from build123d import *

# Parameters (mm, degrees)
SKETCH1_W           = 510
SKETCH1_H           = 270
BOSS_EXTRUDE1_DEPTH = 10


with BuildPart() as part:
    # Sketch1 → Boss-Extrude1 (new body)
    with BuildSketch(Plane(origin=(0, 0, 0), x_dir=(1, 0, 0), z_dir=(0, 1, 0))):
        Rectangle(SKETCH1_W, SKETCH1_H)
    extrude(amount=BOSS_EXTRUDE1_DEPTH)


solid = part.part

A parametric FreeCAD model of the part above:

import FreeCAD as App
import Part
import Sketcher

V = App.Vector

doc = App.newDocument("Part")
body = doc.addObject("PartDesign::Body", "Body")

# Sketch on XZ plane
sketch1 = doc.addObject("Sketcher::SketchObject", "Sketch")
body.addObject(sketch1)
sketch1.AttachmentSupport = (doc.XZ_Plane, [""])
sketch1.MapMode = "FlatFace"
sketch1.addGeometry([
    Part.LineSegment(V(-255, -135, 0), V(-255, 135, 0)),
    Part.LineSegment(V(-255, 135, 0), V(255, 135, 0)),
    Part.LineSegment(V(255, 135, 0), V(255, -135, 0)),
    Part.LineSegment(V(255, -135, 0), V(-255, -135, 0)),
], False)
sketch1.addConstraint([
    Sketcher.Constraint("Coincident", 0, 2, 1, 1),
    Sketcher.Constraint("Coincident", 1, 2, 2, 1),
    Sketcher.Constraint("Coincident", 2, 2, 3, 1),
    Sketcher.Constraint("Coincident", 3, 2, 0, 1),
    Sketcher.Constraint("Vertical", 0),
    Sketcher.Constraint("Horizontal", 1),
    Sketcher.Constraint("Vertical", 2),
    Sketcher.Constraint("Horizontal", 3),
    Sketcher.Constraint("Symmetric", 0, 2, 2, 2, -1, 1),
    Sketcher.Constraint("DistanceX", 1, 1, 1, 2, 510.0),
    Sketcher.Constraint("DistanceY", 0, 1, 0, 2, 270.0),
])
pad1 = doc.addObject("PartDesign::Pad", "Pad")
body.addObject(pad1)
pad1.Profile = sketch1
pad1.Length = 10
pad1.Reversed = True

doc.recompute()
